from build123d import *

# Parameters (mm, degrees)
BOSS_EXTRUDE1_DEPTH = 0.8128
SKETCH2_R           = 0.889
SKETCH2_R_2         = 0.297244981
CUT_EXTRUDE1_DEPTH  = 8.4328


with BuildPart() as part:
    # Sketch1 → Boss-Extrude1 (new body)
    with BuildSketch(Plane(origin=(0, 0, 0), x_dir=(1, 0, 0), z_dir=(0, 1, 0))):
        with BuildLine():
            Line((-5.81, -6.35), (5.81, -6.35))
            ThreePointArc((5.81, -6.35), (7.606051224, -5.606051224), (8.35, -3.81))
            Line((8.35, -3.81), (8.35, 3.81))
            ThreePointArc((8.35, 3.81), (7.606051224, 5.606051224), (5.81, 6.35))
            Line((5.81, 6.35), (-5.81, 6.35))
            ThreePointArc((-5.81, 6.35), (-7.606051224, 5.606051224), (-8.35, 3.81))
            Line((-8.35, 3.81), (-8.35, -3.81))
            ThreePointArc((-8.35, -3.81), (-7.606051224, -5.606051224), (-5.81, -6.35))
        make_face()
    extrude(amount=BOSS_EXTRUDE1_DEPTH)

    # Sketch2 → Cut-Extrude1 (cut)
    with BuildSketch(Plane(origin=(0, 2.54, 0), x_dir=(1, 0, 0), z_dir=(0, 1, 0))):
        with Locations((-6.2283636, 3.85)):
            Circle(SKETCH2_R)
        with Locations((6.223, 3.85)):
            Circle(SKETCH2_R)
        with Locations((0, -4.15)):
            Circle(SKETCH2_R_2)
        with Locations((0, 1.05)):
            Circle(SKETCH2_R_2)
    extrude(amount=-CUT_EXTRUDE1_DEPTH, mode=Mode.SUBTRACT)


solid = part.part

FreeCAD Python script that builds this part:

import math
import FreeCAD as App
import Part
import Sketcher

V = App.Vector
Q = App.Units.Quantity

doc = App.newDocument("Part")
params = doc.addObject("Spreadsheet::Sheet", "Params")
for row, (alias, value) in enumerate([
    ("sketch1_radius", "0.1 in"),
    ("sketch1_height", "0.3 in"),
    ("pad1_length", "0.032 in"),
    ("sketch2_diameter", "0.07 in"),
    ("pocket1_length", "0.332 in"),
], start=1):
    params.set(f"A{row}", alias)
    params.set(f"B{row}", "=" + value)
    params.setAlias(f"B{row}", alias)

body = doc.addObject("PartDesign::Body", "Body")

# Sketch on XZ plane
sketch1 = body.newObject("Sketcher::SketchObject", "Sketch")
sketch1.AttachmentSupport = (doc.getObject("XZ_Plane"), [""])
sketch1.MapMode = "FlatFace"
sketch1.addGeometry([
    Part.LineSegment(V(-5.8, 6.3, 0), V(5.8, 6.3, 0)),  # 0
    Part.ArcOfCircle(Part.Circle(V(5.8, 3.8, 0), V(0, 0, 1), 2.5), math.radians(0), math.radians(90)),  # 1
    Part.LineSegment(V(8.3, 3.8, 0), V(8.3, -3.8, 0)),  # 2
    Part.ArcOfCircle(Part.Circle(V(5.8, -3.8, 0), V(0, 0, 1), 2.5), math.radians(-90), math.radians(0)),  # 3
    Part.LineSegment(V(5.8, -6.3, 0), V(-5.8, -6.3, 0)),  # 4
    Part.ArcOfCircle(Part.Circle(V(-5.8, -3.8, 0), V(0, 0, 1), 2.5), math.radians(-180), math.radians(-90)),  # 5
    Part.LineSegment(V(-8.3, -3.8, 0), V(-8.3, 3.8, 0)),  # 6
    Part.ArcOfCircle(Part.Circle(V(-5.8, 3.8, 0), V(0, 0, 1), 2.5), math.radians(90), math.radians(180)),  # 7
], False)
sketch1.addConstraint([
    Sketcher.Constraint("Tangent", 0, 2, 1, 2),
    Sketcher.Constraint("Tangent", 1, 1, 2, 1),
    Sketcher.Constraint("Tangent", 2, 2, 3, 2),
    Sketcher.Constraint("Tangent", 3, 1, 4, 1),
    Sketcher.Constraint("Tangent", 4, 2, 5, 2),
    Sketcher.Constraint("Tangent", 5, 1, 6, 1),
    Sketcher.Constraint("Tangent", 6, 2, 7, 2),
    Sketcher.Constraint("Tangent", 7, 1, 0, 1),
    Sketcher.Constraint("Horizontal", 0),
    Sketcher.Constraint("Vertical", 2),
    Sketcher.Constraint("Horizontal", 4),
    Sketcher.Constraint("Vertical", 6),
    Sketcher.Constraint("Equal", 1, 3),
    Sketcher.Constraint("Equal", 3, 5),
    Sketcher.Constraint("Equal", 5, 7),
    Sketcher.Constraint("Symmetric", 1, 3, 5, 3, -1, 1),
    Sketcher.Constraint("Radius", 1, Q("0.1 in")),
    Sketcher.Constraint("DistanceY", 2, 2, 2, 1, Q("0.3 in")),
    Sketcher.Constraint("DistanceX", 0, 1, 0, 2, Q("11.62 mm")),
])
sketch1.setExpression("Constraints[16]", "Params.sketch1_radius")
sketch1.setExpression("Constraints[17]", "Params.sketch1_height")
pad1 = body.newObject("PartDesign::Pad", "Pad")
pad1.Profile = sketch1
pad1.setExpression("Length", "Params.pad1_length")
pad1.Reversed = True

# Sketch on XZ plane
sketch2 = body.newObject("Sketcher::SketchObject", "Sketch001")
sketch2.AttachmentSupport = (doc.getObject("XZ_Plane"), [""])
sketch2.MapMode = "FlatFace"
sketch2.AttachmentOffset = App.Placement(V(0, 0, -0.1 * 25.4), App.Rotation())
sketch2.addGeometry([
    Part.Circle(V(-6.23, -3.85, 0), V(0, 0, 1), 0.89),
    Part.Circle(V(6.22, -3.85, 0), V(0, 0, 1), 0.89),
    Part.Circle(V(0, 4.15, 0), V(0, 0, 1), 0.3),
    Part.Circle(V(0, -1.05, 0), V(0, 0, 1), 0.3),
], False)
sketch2.addConstraint([
    Sketcher.Constraint("Equal", 0, 1),
    Sketcher.Constraint("Equal", 2, 3),
    Sketcher.Constraint("PointOnObject", 2, 3, -2),
    Sketcher.Constraint("PointOnObject", 3, 3, -2),
    Sketcher.Constraint("Horizontal", 0, 3, 1, 3),
    Sketcher.Constraint("Diameter", 0, Q("0.07 in")),
    Sketcher.Constraint("Diameter", 2, Q("0.59449 mm")),
    Sketcher.Constraint("DistanceX", -1, 1, 1, 3, Q("0.245 in")),
    Sketcher.Constraint("DistanceY", 0, 3, -1, 1, Q("3.85 mm")),
    Sketcher.Constraint("DistanceY", -1, 1, 2, 3, Q("4.15 mm")),
    Sketcher.Constraint("DistanceY", 3, 3, -1, 1, Q("1.05 mm")),
    Sketcher.Constraint("DistanceX", 0, 3, -1, 1, Q("6.228364 mm")),
])
sketch2.setExpression("Constraints[5]", "Params.sketch2_diameter")
pocket1 = body.newObject("PartDesign::Pocket", "Pocket")
pocket1.Profile = sketch2
pocket1.setExpression("Length", "Params.pocket1_length")
pocket1.Reversed = True

doc.recompute()
